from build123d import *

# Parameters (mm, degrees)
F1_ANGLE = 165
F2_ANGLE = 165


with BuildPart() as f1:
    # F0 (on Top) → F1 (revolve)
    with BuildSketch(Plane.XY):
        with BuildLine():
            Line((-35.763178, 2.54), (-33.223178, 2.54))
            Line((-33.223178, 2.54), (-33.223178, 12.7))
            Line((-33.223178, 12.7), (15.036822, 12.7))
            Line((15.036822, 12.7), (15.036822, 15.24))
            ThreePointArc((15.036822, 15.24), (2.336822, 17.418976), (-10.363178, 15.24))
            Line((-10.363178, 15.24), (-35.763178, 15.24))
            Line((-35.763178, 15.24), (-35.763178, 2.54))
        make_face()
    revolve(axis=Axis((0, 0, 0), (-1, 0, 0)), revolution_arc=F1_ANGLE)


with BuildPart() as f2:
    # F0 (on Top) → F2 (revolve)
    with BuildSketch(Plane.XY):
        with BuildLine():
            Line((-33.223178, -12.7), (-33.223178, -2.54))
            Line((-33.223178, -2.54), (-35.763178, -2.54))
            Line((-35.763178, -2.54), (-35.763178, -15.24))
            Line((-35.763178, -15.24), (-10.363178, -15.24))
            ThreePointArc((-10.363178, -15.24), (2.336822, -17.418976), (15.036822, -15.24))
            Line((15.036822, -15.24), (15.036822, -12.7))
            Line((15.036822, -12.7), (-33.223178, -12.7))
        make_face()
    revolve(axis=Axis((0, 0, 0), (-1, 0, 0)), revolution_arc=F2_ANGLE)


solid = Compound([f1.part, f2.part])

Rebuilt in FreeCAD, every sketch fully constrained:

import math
import FreeCAD as App
import Part
import Sketcher
Q = App.Units.Quantity

doc = App.newDocument("Part")
body = doc.addObject("PartDesign::Body", "Body")

sketch1 = body.newObject("Sketcher::SketchObject", "Sketch")
sketch1.AttachmentSupport = (doc.getObject("XY_Plane"), [""])
sketch1.MapMode = "FlatFace"
sketch1.addGeometry(Part.LineSegment(App.Vector(-35.8, 2.5, 0), App.Vector(-33.2, 2.5, 0)), False)
sketch1.addGeometry(Part.LineSegment(App.Vector(-33.2, 2.5, 0), App.Vector(-33.2, 12.7, 0)), False)
sketch1.addGeometry(Part.LineSegment(App.Vector(-33.2, 12.7, 0), App.Vector(15, 12.7, 0)), False)
sketch1.addGeometry(Part.LineSegment(App.Vector(15, 12.7, 0), App.Vector(15, 15.2, 0)), False)
sketch1.addGeometry(Part.ArcOfCircle(Part.Circle(App.Vector(2.3, -20.7, 0), App.Vector(0, 0, 1), 38.1), math.radians(71), math.radians(109)), False)
sketch1.addGeometry(Part.LineSegment(App.Vector(-10.4, 15.2, 0), App.Vector(-35.8, 15.2, 0)), False)
sketch1.addGeometry(Part.LineSegment(App.Vector(-35.8, 15.2, 0), App.Vector(-35.8, 2.5, 0)), False)
sketch1.addConstraint(Sketcher.Constraint("Coincident", 0, 2, 1, 1))
sketch1.addConstraint(Sketcher.Constraint("Coincident", 1, 2, 2, 1))
sketch1.addConstraint(Sketcher.Constraint("Coincident", 2, 2, 3, 1))
sketch1.addConstraint(Sketcher.Constraint("Coincident", 3, 2, 4, 1))
sketch1.addConstraint(Sketcher.Constraint("Coincident", 4, 2, 5, 1))
sketch1.addConstraint(Sketcher.Constraint("Coincident", 5, 2, 6, 1))
sketch1.addConstraint(Sketcher.Constraint("Coincident", 6, 2, 0, 1))
sketch1.addConstraint(Sketcher.Constraint("Horizontal", 0))
sketch1.addConstraint(Sketcher.Constraint("Vertical", 1))
sketch1.addConstraint(Sketcher.Constraint("Horizontal", 2))
sketch1.addConstraint(Sketcher.Constraint("Vertical", 3))
sketch1.addConstraint(Sketcher.Constraint("Horizontal", 5))
sketch1.addConstraint(Sketcher.Constraint("Vertical", 6))
sketch1.addConstraint(Sketcher.Constraint("Horizontal", 3, 2, 4, 2))
sketch1.addConstraint(Sketcher.Constraint("Equal", 0, 3))
sketch1.addConstraint(Sketcher.Constraint("DistanceX", 5, 2, 5, 1, Q("1 in")))
sketch1.addConstraint(Sketcher.Constraint("DistanceX", 0, 1, 0, 2, Q("0.1 in")))
sketch1.addConstraint(Sketcher.Constraint("DistanceX", 2, 1, 2, 2, Q("1.9 in")))
sketch1.addConstraint(Sketcher.Constraint("DistanceY", 1, 1, 1, 2, Q("0.4 in")))
sketch1.addConstraint(Sketcher.Constraint("DistanceY", -1, 1, 0, 2, Q("0.1 in")))
sketch1.addConstraint(Sketcher.Constraint("Radius", 4, Q("38.099992 mm")))
sketch1.addConstraint(Sketcher.Constraint("DistanceX", 4, 2, -1, 1, Q("10.363178 mm")))
revolution = body.newObject("PartDesign::Revolution", "Revolution")
revolution.Profile = sketch1
revolution.ReferenceAxis = (sketch1, ["H_Axis"])
revolution.Angle = 165
revolution.Reversed = True
body2 = doc.addObject("PartDesign::Body", "Body001")

sketch2 = body2.newObject("Sketcher::SketchObject", "Sketch001")
sketch2.AttachmentSupport = (doc.getObject("XY_Plane001"), [""])
sketch2.MapMode = "FlatFace"
sketch2.addGeometry(Part.LineSegment(App.Vector(-33.2, -12.7, 0), App.Vector(-33.2, -2.5, 0)), False)
sketch2.addGeometry(Part.LineSegment(App.Vector(-33.2, -2.5, 0), App.Vector(-35.8, -2.5, 0)), False)
sketch2.addGeometry(Part.LineSegment(App.Vector(-35.8, -2.5, 0), App.Vector(-35.8, -15.2, 0)), False)
sketch2.addGeometry(Part.LineSegment(App.Vector(-35.8, -15.2, 0), App.Vector(-10.4, -15.2, 0)), False)
sketch2.addGeometry(Part.ArcOfCircle(Part.Circle(App.Vector(2.3, 20.7, 0), App.Vector(0, 0, 1), 38.1), math.radians(-109), math.radians(-71)), False)
sketch2.addGeometry(Part.LineSegment(App.Vector(15, -15.2, 0), App.Vector(15, -12.7, 0)), False)
sketch2.addGeometry(Part.LineSegment(App.Vector(15, -12.7, 0), App.Vector(-33.2, -12.7, 0)), False)
sketch2.addConstraint(Sketcher.Constraint("Coincident", 0, 2, 1, 1))
sketch2.addConstraint(Sketcher.Constraint("Coincident", 1, 2, 2, 1))
sketch2.addConstraint(Sketcher.Constraint("Coincident", 2, 2, 3, 1))
sketch2.addConstraint(Sketcher.Constraint("Coincident", 3, 2, 4, 1))
sketch2.addConstraint(Sketcher.Constraint("Coincident", 4, 2, 5, 1))
sketch2.addConstraint(Sketcher.Constraint("Coincident", 5, 2, 6, 1))
sketch2.addConstraint(Sketcher.Constraint("Coincident", 6, 2, 0, 1))
sketch2.addConstraint(Sketcher.Constraint("Vertical", 0))
sketch2.addConstraint(Sketcher.Constraint("Horizontal", 1))
sketch2.addConstraint(Sketcher.Constraint("Vertical", 2))
sketch2.addConstraint(Sketcher.Constraint("Horizontal", 3))
sketch2.addConstraint(Sketcher.Constraint("Vertical", 5))
sketch2.addConstraint(Sketcher.Constraint("Horizontal", 6))
sketch2.addConstraint(Sketcher.Constraint("Horizontal", 3, 2, 4, 2))
sketch2.addConstraint(Sketcher.Constraint("Equal", 1, 5))
sketch2.addConstraint(Sketcher.Constraint("DistanceX", 3, 1, 3, 2, Q("1 in")))
sketch2.addConstraint(Sketcher.Constraint("DistanceX", 1, 2, 1, 1, Q("0.1 in")))
sketch2.addConstraint(Sketcher.Constraint("DistanceX", 6, 2, 6, 1, Q("1.9 in")))
sketch2.addConstraint(Sketcher.Constraint("DistanceY", 0, 1, 0, 2, Q("0.4 in")))
sketch2.addConstraint(Sketcher.Constraint("DistanceY", 0, 2, -1, 1, Q("0.1 in")))
sketch2.addConstraint(Sketcher.Constraint("Radius", 4, Q("38.099992 mm")))
sketch2.addConstraint(Sketcher.Constraint("DistanceX", 1, 2, -1, 1, Q("35.763178 mm")))
revolution2 = body2.newObject("PartDesign::Revolution", "Revolution001")
revolution2.Profile = sketch2
revolution2.ReferenceAxis = (sketch2, ["H_Axis"])
revolution2.Angle = 165
revolution2.Reversed = True

doc.recompute()
